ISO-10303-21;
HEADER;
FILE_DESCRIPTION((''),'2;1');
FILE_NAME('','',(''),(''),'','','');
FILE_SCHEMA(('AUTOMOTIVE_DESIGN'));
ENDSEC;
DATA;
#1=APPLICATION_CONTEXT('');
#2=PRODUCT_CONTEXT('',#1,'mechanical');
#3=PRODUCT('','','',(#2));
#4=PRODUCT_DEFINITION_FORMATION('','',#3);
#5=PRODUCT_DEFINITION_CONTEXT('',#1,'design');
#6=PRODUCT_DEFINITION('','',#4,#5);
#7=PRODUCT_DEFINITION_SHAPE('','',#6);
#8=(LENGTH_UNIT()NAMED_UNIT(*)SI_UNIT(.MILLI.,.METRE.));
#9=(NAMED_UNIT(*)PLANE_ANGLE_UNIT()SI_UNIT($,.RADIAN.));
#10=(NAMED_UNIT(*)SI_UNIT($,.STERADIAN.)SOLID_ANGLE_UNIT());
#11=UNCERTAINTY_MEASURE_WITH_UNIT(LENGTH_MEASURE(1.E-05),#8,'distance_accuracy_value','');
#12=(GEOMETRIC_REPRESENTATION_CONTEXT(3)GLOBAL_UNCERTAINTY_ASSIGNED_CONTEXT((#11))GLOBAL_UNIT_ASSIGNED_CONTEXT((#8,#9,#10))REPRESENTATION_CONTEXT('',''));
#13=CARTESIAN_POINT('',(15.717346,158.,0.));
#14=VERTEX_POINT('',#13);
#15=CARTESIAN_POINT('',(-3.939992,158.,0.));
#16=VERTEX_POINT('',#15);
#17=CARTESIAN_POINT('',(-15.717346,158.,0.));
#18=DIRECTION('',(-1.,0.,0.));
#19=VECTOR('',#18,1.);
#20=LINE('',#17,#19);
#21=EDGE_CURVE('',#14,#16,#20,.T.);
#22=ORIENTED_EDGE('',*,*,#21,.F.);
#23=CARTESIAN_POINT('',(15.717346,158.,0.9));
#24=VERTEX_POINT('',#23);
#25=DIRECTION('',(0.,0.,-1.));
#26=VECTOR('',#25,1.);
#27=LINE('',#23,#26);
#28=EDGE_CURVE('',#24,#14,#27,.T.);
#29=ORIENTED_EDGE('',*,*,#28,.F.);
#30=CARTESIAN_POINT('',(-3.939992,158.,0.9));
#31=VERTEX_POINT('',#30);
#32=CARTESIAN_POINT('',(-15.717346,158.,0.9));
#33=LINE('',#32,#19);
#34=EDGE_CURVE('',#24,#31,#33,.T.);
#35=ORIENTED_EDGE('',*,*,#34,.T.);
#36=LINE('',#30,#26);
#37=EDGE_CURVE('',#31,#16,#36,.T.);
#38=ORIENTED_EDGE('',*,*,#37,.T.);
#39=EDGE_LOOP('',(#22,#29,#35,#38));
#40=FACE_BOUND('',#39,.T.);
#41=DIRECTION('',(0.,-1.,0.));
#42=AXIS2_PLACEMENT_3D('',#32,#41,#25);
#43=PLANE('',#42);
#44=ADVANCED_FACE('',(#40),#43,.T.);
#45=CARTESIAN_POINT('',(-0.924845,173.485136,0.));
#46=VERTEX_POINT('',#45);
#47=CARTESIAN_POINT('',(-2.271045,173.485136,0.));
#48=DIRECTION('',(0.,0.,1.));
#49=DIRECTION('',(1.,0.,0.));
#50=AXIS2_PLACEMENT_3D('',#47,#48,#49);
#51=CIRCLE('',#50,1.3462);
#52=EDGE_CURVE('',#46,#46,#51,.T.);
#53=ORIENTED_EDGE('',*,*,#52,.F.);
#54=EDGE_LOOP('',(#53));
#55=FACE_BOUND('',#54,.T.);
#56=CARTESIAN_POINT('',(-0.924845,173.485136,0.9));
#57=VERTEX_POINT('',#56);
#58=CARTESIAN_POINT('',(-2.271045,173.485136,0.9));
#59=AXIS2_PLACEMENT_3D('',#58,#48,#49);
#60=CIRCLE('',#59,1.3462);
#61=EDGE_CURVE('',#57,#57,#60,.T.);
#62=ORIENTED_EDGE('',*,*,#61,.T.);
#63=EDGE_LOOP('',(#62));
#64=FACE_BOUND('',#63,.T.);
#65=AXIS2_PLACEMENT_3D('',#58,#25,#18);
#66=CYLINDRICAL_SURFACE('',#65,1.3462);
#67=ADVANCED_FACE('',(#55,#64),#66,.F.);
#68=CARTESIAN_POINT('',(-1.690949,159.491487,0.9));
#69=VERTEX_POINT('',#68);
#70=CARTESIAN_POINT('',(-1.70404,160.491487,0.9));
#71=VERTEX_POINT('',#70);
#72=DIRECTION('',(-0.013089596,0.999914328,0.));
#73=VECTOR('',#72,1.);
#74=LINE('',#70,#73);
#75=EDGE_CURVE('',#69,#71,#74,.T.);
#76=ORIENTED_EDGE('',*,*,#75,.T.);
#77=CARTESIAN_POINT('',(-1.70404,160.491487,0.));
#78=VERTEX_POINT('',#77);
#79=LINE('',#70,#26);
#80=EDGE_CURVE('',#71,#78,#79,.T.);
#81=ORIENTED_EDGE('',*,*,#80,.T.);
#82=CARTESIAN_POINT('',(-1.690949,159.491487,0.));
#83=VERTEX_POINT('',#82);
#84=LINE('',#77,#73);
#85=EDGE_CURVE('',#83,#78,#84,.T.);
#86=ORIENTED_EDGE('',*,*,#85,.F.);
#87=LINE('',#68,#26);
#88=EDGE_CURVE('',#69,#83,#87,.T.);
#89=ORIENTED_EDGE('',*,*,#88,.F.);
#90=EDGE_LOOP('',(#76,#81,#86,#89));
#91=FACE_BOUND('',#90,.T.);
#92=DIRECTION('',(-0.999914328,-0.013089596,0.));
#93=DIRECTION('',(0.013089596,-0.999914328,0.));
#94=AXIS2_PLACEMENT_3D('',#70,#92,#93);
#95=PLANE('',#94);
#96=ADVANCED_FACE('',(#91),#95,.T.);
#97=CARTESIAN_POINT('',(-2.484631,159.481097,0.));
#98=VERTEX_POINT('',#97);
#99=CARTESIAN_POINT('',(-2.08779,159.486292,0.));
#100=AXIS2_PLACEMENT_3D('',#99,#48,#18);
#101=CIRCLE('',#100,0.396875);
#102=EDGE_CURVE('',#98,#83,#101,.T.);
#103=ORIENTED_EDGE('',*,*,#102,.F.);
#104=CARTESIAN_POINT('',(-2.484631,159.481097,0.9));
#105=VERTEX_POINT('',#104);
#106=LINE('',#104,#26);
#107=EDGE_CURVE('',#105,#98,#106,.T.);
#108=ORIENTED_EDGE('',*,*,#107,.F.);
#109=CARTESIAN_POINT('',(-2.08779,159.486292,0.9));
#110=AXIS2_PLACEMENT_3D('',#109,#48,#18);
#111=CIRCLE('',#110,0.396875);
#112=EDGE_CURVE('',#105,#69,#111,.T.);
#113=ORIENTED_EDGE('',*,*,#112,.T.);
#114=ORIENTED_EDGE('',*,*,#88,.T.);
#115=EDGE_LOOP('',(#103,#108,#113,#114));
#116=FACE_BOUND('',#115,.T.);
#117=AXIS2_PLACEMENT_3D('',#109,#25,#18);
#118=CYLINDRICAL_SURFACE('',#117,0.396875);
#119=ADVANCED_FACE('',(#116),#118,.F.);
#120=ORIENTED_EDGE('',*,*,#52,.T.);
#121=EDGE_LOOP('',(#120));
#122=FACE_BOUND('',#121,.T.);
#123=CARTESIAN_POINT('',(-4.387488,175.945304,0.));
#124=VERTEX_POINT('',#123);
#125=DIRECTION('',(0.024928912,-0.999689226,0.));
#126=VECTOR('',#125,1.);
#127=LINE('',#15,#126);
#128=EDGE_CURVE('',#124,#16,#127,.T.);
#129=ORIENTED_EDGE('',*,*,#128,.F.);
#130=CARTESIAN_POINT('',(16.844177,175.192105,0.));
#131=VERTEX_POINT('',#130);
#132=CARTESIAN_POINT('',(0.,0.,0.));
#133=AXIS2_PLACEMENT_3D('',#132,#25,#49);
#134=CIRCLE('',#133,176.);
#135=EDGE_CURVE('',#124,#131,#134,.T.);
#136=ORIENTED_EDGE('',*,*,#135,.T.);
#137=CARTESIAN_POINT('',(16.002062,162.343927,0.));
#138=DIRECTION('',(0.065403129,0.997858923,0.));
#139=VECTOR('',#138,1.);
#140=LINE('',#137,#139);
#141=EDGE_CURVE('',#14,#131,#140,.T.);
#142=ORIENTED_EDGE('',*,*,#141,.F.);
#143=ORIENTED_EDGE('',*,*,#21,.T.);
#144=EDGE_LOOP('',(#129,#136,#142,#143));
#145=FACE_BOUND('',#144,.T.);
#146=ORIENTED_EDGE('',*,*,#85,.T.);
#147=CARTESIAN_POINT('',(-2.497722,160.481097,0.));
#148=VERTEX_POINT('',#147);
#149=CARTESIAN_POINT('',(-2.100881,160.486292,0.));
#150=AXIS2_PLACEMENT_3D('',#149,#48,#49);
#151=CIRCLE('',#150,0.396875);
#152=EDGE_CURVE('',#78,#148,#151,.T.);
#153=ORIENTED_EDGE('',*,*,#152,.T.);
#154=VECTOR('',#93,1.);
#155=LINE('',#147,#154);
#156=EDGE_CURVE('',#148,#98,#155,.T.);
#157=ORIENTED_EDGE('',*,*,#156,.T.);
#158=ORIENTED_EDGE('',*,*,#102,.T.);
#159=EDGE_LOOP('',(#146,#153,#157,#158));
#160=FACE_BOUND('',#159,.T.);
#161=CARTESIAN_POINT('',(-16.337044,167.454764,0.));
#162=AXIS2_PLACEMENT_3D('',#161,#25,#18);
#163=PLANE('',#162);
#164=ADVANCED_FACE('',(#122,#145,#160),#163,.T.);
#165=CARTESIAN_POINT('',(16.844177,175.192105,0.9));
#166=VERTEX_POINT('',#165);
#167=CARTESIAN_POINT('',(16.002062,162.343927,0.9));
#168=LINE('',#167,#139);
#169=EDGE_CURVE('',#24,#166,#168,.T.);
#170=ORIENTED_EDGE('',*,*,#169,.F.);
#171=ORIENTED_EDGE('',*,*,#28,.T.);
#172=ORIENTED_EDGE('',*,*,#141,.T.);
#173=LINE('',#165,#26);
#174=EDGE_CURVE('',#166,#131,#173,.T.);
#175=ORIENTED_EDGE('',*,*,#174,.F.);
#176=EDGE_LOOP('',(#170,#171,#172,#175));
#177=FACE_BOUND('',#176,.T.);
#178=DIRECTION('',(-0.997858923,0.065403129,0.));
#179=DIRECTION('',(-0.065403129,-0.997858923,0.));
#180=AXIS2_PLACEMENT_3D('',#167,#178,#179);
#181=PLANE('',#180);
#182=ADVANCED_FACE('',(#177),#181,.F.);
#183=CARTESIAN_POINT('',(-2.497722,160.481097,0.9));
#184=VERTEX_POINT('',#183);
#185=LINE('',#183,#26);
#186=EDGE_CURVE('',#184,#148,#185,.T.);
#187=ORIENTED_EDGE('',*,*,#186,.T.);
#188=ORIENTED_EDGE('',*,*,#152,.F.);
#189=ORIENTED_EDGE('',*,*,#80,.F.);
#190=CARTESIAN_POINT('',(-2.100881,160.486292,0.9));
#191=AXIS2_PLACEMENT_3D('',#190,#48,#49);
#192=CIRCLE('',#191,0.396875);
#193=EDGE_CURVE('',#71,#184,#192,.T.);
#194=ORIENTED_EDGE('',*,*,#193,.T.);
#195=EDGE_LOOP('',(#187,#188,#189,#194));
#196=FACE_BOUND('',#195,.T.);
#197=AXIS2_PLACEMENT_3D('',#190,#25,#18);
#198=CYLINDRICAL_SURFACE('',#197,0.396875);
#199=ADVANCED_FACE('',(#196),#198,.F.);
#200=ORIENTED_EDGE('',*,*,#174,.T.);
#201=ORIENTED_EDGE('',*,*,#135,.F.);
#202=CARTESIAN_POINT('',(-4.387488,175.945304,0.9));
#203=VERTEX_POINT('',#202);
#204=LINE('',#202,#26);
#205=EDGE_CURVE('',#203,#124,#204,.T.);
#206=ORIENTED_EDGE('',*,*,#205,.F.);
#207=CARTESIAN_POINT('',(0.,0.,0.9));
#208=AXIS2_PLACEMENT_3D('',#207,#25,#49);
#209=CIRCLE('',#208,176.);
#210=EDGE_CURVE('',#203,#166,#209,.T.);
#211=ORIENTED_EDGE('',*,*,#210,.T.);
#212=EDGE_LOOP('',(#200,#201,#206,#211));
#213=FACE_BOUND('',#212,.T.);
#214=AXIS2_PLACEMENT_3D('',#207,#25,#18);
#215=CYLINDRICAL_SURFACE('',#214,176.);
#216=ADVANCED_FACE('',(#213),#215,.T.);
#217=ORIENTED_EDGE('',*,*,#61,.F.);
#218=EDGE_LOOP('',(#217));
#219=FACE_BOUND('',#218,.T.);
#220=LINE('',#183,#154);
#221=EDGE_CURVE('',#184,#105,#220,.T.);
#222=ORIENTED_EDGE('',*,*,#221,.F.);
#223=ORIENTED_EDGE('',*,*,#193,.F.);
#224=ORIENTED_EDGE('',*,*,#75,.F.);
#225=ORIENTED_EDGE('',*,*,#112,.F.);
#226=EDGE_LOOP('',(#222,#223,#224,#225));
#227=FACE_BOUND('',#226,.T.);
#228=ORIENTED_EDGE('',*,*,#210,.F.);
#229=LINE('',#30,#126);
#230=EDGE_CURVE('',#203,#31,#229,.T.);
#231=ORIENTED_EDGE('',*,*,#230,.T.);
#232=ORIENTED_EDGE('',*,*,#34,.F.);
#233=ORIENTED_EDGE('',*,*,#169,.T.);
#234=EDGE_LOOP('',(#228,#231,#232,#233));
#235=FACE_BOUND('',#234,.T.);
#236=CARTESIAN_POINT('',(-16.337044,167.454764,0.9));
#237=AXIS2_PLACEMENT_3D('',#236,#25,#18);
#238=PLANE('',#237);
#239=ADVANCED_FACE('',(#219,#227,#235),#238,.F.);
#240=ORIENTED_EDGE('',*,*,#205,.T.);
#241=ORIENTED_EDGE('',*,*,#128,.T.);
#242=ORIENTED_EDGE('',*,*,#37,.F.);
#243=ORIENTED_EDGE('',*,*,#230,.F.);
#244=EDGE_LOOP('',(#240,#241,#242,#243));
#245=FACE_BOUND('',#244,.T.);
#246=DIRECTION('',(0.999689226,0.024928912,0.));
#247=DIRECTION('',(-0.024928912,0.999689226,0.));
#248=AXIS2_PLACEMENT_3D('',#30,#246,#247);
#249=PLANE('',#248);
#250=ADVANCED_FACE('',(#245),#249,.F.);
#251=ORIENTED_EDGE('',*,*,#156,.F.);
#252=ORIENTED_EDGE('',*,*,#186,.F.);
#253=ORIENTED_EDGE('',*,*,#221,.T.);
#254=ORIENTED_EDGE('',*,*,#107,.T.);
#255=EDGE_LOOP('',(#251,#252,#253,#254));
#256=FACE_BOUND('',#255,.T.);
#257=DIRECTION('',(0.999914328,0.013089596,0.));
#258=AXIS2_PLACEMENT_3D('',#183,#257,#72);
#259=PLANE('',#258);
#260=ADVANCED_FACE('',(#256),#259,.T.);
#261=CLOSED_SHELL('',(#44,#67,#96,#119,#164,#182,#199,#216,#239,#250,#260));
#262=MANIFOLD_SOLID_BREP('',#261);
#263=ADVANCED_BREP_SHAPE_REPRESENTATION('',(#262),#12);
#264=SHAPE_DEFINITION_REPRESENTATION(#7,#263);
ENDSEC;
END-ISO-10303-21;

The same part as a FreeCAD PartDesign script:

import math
import FreeCAD as App
import Part
import Sketcher

V = App.Vector
Q = App.Units.Quantity


def edges_at(feature, points):
    """Names of the edges that pass closest to the given points."""
    edges = feature.Shape.Edges
    near = lambda p: min(range(len(edges)), key=lambda i: edges[i].distToShape(Part.Vertex(*p))[0])
    return sorted({f"Edge{near(p) + 1}" for p in points})

doc = App.newDocument("Part")
params = doc.addObject("Spreadsheet::Sheet", "Params")
for row, (alias, value) in enumerate([
    ("pad1_length", "0.9 mm"),
    ("sketch2_radius", "176 mm"),
    ("pad2_length", "0.9 mm"),
    ("sketch4_radius", "1 mm"),
    ("sketch5_radius", "176.000002 mm"),
    ("fillet_radius", "0.5 mm"),
    ("sketch6_radius", "1 mm"),
    ("sketch6_radius2", "0.5 mm"),
], start=1):
    params.set(f"A{row}", alias)
    params.set(f"B{row}", "=" + value)
    params.setAlias(f"B{row}", alias)

body = doc.addObject("PartDesign::Body", "Body")

# Sketch on XY plane
sketch1 = body.newObject("Sketcher::SketchObject", "Sketch")
sketch1.AttachmentSupport = (doc.getObject("XY_Plane"), [""])
sketch1.MapMode = "FlatFace"
sketch1.addGeometry(Part.LineSegment(V(16.337044, 167.454764, 0), V(-16.337044, 167.454764, 0)), False)
sketch1.addGeometry(Part.LineSegment(V(-16.337044, 167.454764, 0), V(-16.002062, 162.343927, 0)), False)
sketch1.addGeometry(Part.LineSegment(V(-16.002062, 162.343927, 0), V(16.002062, 162.343927, 0)), False)
sketch1.addGeometry(Part.LineSegment(V(16.002062, 162.343927, 0), V(16.337044, 167.454764, 0)), False)
sketch1.addConstraint(Sketcher.Constraint("Coincident", 0, 2, 1, 1))
sketch1.addConstraint(Sketcher.Constraint("Coincident", 1, 2, 2, 1))
sketch1.addConstraint(Sketcher.Constraint("Coincident", 2, 2, 3, 1))
sketch1.addConstraint(Sketcher.Constraint("Coincident", 3, 2, 0, 1))
sketch1.addConstraint(Sketcher.Constraint("Horizontal", 0))
sketch1.addConstraint(Sketcher.Constraint("Horizontal", 2))
sketch1.addConstraint(Sketcher.Constraint("Equal", 1, 3))
sketch1.addConstraint(Sketcher.Constraint("Angle", 1, Q("-86.25 deg")))
sketch1.addConstraint(Sketcher.Constraint("DistanceX", 0, 2, 0, 1, 32.674089))
sketch1.addConstraint(Sketcher.Constraint("DistanceX", 2, 1, 2, 2, 32.004125))
sketch1.addConstraint(Sketcher.Constraint("DistanceX", 0, 2, -1, 1, 16.337044))
sketch1.addConstraint(Sketcher.Constraint("DistanceY", -1, 1, 0, 2, 167.454764))
pad1 = body.newObject("PartDesign::Pad", "Pad")
pad1.Profile = sketch1
pad1.setExpression("Length", "Params.pad1_length")

# Sketch on XY plane
sketch2 = body.newObject("Sketcher::SketchObject", "Sketch001")
sketch2.AttachmentSupport = (doc.getObject("XY_Plane"), [""])
sketch2.MapMode = "FlatFace"
sketch2.addGeometry(Part.LineSegment(V(-15.717346, 158, 0), V(-16.844177, 175.192105, 0)), False)
sketch2.addGeometry(Part.ArcOfCircle(Part.Circle(V(0, 0, 0), V(0, 0, 1), 176), math.radians(84.50807), math.radians(95.49193)), False)
sketch2.addGeometry(Part.LineSegment(V(16.844177, 175.192105, 0), V(15.717346, 158, 0)), False)
sketch2.addGeometry(Part.LineSegment(V(15.717346, 158, 0), V(-15.717346, 158, 0)), False)
sketch2.addConstraint(Sketcher.Constraint("Coincident", 0, 2, 1, 2))
sketch2.addConstraint(Sketcher.Constraint("Coincident", 1, 1, 2, 1))
sketch2.addConstraint(Sketcher.Constraint("Coincident", 2, 2, 3, 1))
sketch2.addConstraint(Sketcher.Constraint("Coincident", 3, 2, 0, 1))
sketch2.addConstraint(Sketcher.Constraint("Horizontal", 3))
sketch2.addConstraint(Sketcher.Constraint("Coincident", 1, 3, -1, 1))
sketch2.addConstraint(Sketcher.Constraint("Horizontal", 0, 2, 1, 1))
sketch2.addConstraint(Sketcher.Constraint("Equal", 0, 2))
sketch2.addConstraint(Sketcher.Constraint("Radius", 1, 176.0))
sketch2.addConstraint(Sketcher.Constraint("DistanceY", -1, 1, 2, 2, 158.0))
sketch2.addConstraint(Sketcher.Constraint("Angle", 0, Q("93.75 deg")))
sketch2.addConstraint(Sketcher.Constraint("DistanceX", 3, 2, 3, 1, 31.434693))
sketch2.setExpression("Constraints[8]", "Params.sketch2_radius")
pad2 = body.newObject("PartDesign::Pad", "Pad001")
pad2.Profile = sketch2
pad2.setExpression("Length", "Params.pad2_length")

# Sketch on XY plane
sketch3 = body.newObject("Sketcher::SketchObject", "Sketch002")
sketch3.AttachmentSupport = (doc.getObject("XY_Plane"), [""])
sketch3.MapMode = "FlatFace"
sketch3.addGeometry(Part.Circle(V(-2.271045, 173.485136, 0), V(0, 0, 1), 1.3462), False)
sketch3.addGeometry(Part.LineSegment(V(-1.690949, 159.491487, 0), V(-1.70404, 160.491487, 0)), False)
sketch3.addGeometry(Part.ArcOfCircle(Part.Circle(V(-2.100881, 160.486292, 0), V(0, 0, 1), 0.396875), math.radians(0.75), math.radians(180.75)), False)
sketch3.addGeometry(Part.LineSegment(V(-2.497722, 160.481097, 0), V(-2.484631, 159.481097, 0)), False)
sketch3.addGeometry(Part.ArcOfCircle(Part.Circle(V(-2.08779, 159.486292, 0), V(0, 0, 1), 0.396875), math.radians(-179.25), math.radians(0.75)), False)
sketch3.addConstraint(Sketcher.Constraint("Tangent", 1, 2, 2, 1))
sketch3.addConstraint(Sketcher.Constraint("Tangent", 2, 2, 3, 1))
sketch3.addConstraint(Sketcher.Constraint("Tangent", 3, 2, 4, 1))
sketch3.addConstraint(Sketcher.Constraint("Tangent", 4, 2, 1, 1))
sketch3.addConstraint(Sketcher.Constraint("Equal", 2, 4))
sketch3.addConstraint(Sketcher.Constraint("DistanceY", 4, 3, 2, 3, 1.0))
sketch3.addConstraint(Sketcher.Constraint("Diameter", 0, 2.6924))
sketch3.addConstraint(Sketcher.Constraint("Angle", 1, Q("90.75 deg")))
sketch3.addConstraint(Sketcher.Constraint("Radius", 2, 0.396875))
sketch3.addConstraint(Sketcher.Constraint("DistanceX", 2, 3, -1, 1, 2.100881))
sketch3.addConstraint(Sketcher.Constraint("DistanceY", 1, 2, 0, 3, 12.993648))
sketch3.addConstraint(Sketcher.Constraint("DistanceX", 0, 3, -1, 1, 2.271045))
sketch3.addConstraint(Sketcher.Constraint("DistanceY", -1, 1, 0, 3, 173.485136))
pocket1 = body.newObject("PartDesign::Pocket", "Pocket")
pocket1.Profile = sketch3
pocket1.Type = "ThroughAll"
pocket1.Reversed = True

# Sketch on XY plane
sketch4 = body.newObject("Sketcher::SketchObject", "Sketch003")
sketch4.AttachmentSupport = (doc.getObject("XY_Plane"), [""])
sketch4.MapMode = "FlatFace"
sketch4.AttachmentOffset = App.Placement(V(0, 0, 0.9), App.Rotation())
sketch4.addGeometry(Part.LineSegment(V(-12, 171, 0), V(-12, 175.590433, 0)), False)
sketch4.addGeometry(Part.ArcOfCircle(Part.Circle(V(0, 0.000005, 0), V(0, 0, 1), 175.999995), math.radians(93.909564), math.radians(95.49193)), False)
sketch4.addGeometry(Part.LineSegment(V(-16.844177, 175.192105, 0), V(-16.503868, 170, 0)), False)
sketch4.addGeometry(Part.LineSegment(V(-16.503868, 170, 0), V(-13, 170, 0)), False)
sketch4.addGeometry(Part.ArcOfCircle(Part.Circle(V(-13, 171, 0), V(0, 0, 1), 1), math.radians(-90), math.radians(0)), False)
sketch4.addConstraint(Sketcher.Constraint("Coincident", 0, 2, 1, 1))
sketch4.addConstraint(Sketcher.Constraint("Coincident", 1, 2, 2, 1))
sketch4.addConstraint(Sketcher.Constraint("Coincident", 2, 2, 3, 1))
sketch4.addConstraint(Sketcher.Constraint("Tangent", 3, 2, 4, 1))
sketch4.addConstraint(Sketcher.Constraint("Tangent", 4, 2, 0, 1))
sketch4.addConstraint(Sketcher.Constraint("Vertical", 0))
sketch4.addConstraint(Sketcher.Constraint("Horizontal", 3))
sketch4.addConstraint(Sketcher.Constraint("Coincident", 1, 3, -1, 1))
sketch4.addConstraint(Sketcher.Constraint("Radius", 4, 1.0))
sketch4.addConstraint(Sketcher.Constraint("DistanceX", 4, 3, -1, 1, 13.0))
sketch4.addConstraint(Sketcher.Constraint("DistanceY", -1, 1, 4, 3, 171.0))
sketch4.addConstraint(Sketcher.Constraint("Angle", 2, Q("-86.25 deg")))
sketch4.addConstraint(Sketcher.Constraint("Radius", 1, 175.999995))
sketch4.addConstraint(Sketcher.Constraint("DistanceX", 3, 1, 3, 2, 3.503868))
sketch4.setExpression("Constraints[8]", "Params.sketch4_radius")
pocket2 = body.newObject("PartDesign::Pocket", "Pocket001")
pocket2.Profile = sketch4
pocket2.Type = "ThroughAll"

# Sketch on XY plane
sketch5 = body.newObject("Sketcher::SketchObject", "Sketch004")
sketch5.AttachmentSupport = (doc.getObject("XY_Plane"), [""])
sketch5.MapMode = "FlatFace"
sketch5.AttachmentOffset = App.Placement(V(0, 0, 0.9), App.Rotation())
sketch5.addGeometry(Part.LineSegment(V(-5.934879, 173.754534, 0), V(-5.934879, 175.899907, 0)), False)
sketch5.addGeometry(Part.ArcOfCircle(Part.Circle(V(0, -0.000002, 0), V(0, 0, 1), 176.000002), math.radians(91.932432), math.radians(94.374945)), False)
sketch5.addGeometry(Part.LineSegment(V(-13.425811, 175.487172, 0), V(-13.425811, 173.754534, 0)), False)
sketch5.addGeometry(Part.LineSegment(V(-13.425811, 173.754534, 0), V(-5.934879, 173.754534, 0)), False)
sketch5.addConstraint(Sketcher.Constraint("Coincident", 0, 2, 1, 1))
sketch5.addConstraint(Sketcher.Constraint("Coincident", 1, 2, 2, 1))
sketch5.addConstraint(Sketcher.Constraint("Coincident", 2, 2, 3, 1))
sketch5.addConstraint(Sketcher.Constraint("Coincident", 3, 2, 0, 1))
sketch5.addConstraint(Sketcher.Constraint("Vertical", 0))
sketch5.addConstraint(Sketcher.Constraint("Vertical", 2))
sketch5.addConstraint(Sketcher.Constraint("Horizontal", 3))
sketch5.addConstraint(Sketcher.Constraint("Coincident", 1, 3, -1, 1))
sketch5.addConstraint(Sketcher.Constraint("Radius", 1, 176.000002))
sketch5.addConstraint(Sketcher.Constraint("DistanceY", 2, 2, 2, 1, 1.732638))
sketch5.addConstraint(Sketcher.Constraint("DistanceX", 3, 1, 3, 2, 7.490932))
sketch5.addConstraint(Sketcher.Constraint("DistanceY", 0, 1, 0, 2, 2.145373))
sketch5.setExpression("Constraints[8]", "Params.sketch5_radius")
pocket3 = body.newObject("PartDesign::Pocket", "Pocket002")
pocket3.Profile = sketch5
pocket3.Type = "ThroughAll"
doc.recompute()

fillet = body.newObject("PartDesign::Fillet", "Fillet")
fillet.Base = (pocket3, edges_at(pocket3, [(-5.935, 173.755, 0.45)]))
fillet.setExpression("Radius", "Params.fillet_radius")

# Sketch on XY plane
sketch6 = body.newObject("Sketcher::SketchObject", "Sketch005")
sketch6.AttachmentSupport = (doc.getObject("XY_Plane"), [""])
sketch6.MapMode = "FlatFace"
sketch6.addGeometry(Part.LineSegment(V(-4.387488, 175.945304, 0), V(-3.939992, 158, 0)), False)
sketch6.addGeometry(Part.LineSegment(V(-3.939992, 158, 0), V(-15.717346, 158, 0)), False)
sketch6.addGeometry(Part.LineSegment(V(-15.717346, 158, 0), V(-16.503868, 170, 0)), False)
sketch6.addGeometry(Part.LineSegment(V(-16.503868, 170, 0), V(-13, 170, 0)), False)
sketch6.addGeometry(Part.ArcOfCircle(Part.Circle(V(-13, 171, 0), V(0, 0, 1), 1), math.radians(-90), math.radians(0)), False)
sketch6.addGeometry(Part.LineSegment(V(-12, 171, 0), V(-12, 173.754534, 0)), False)
sketch6.addGeometry(Part.LineSegment(V(-12, 173.754534, 0), V(-6.434879, 173.754534, 0)), False)
sketch6.addGeometry(Part.ArcOfCircle(Part.Circle(V(-6.434879, 174.254534, 0), V(0, 0, 1), 0.5), math.radians(-90), math.radians(0)), False)
sketch6.addGeometry(Part.LineSegment(V(-5.934879, 174.254534, 0), V(-5.934879, 175.899907, 0)), False)
sketch6.addGeometry(Part.ArcOfCircle(Part.Circle(V(0, -0.000008, 0), V(0, 0, 1), 176.000008), math.radians(91.428469), math.radians(91.932432)), False)
sketch6.addConstraint(Sketcher.Constraint("Coincident", 0, 2, 1, 1))
sketch6.addConstraint(Sketcher.Constraint("Coincident", 1, 2, 2, 1))
sketch6.addConstraint(Sketcher.Constraint("Coincident", 2, 2, 3, 1))
sketch6.addConstraint(Sketcher.Constraint("Tangent", 3, 2, 4, 1))
sketch6.addConstraint(Sketcher.Constraint("Tangent", 4, 2, 5, 1))
sketch6.addConstraint(Sketcher.Constraint("Coincident", 5, 2, 6, 1))
sketch6.addConstraint(Sketcher.Constraint("Tangent", 6, 2, 7, 1))
sketch6.addConstraint(Sketcher.Constraint("Tangent", 7, 2, 8, 1))
sketch6.addConstraint(Sketcher.Constraint("Coincident", 8, 2, 9, 2))
sketch6.addConstraint(Sketcher.Constraint("Coincident", 9, 1, 0, 1))
sketch6.addConstraint(Sketcher.Constraint("Horizontal", 1))
sketch6.addConstraint(Sketcher.Constraint("Horizontal", 3))
sketch6.addConstraint(Sketcher.Constraint("Vertical", 5))
sketch6.addConstraint(Sketcher.Constraint("Horizontal", 6))
sketch6.addConstraint(Sketcher.Constraint("Vertical", 8))
sketch6.addConstraint(Sketcher.Constraint("Coincident", 9, 3, -1, 1))
sketch6.addConstraint(Sketcher.Constraint("Radius", 4, 1.0))
sketch6.addConstraint(Sketcher.Constraint("Radius", 7, 0.5))
sketch6.addConstraint(Sketcher.Constraint("DistanceX", 4, 3, -1, 1, 13.0))
sketch6.addConstraint(Sketcher.Constraint("DistanceY", -1, 1, 4, 3, 171.0))
sketch6.addConstraint(Sketcher.Constraint("DistanceY", -1, 1, 0, 2, 158.0))
sketch6.addConstraint(Sketcher.Constraint("Angle", 2, Q("93.75 deg")))
sketch6.addConstraint(Sketcher.Constraint("Radius", 9, 176.000008))
sketch6.addConstraint(Sketcher.Constraint("DistanceX", 3, 1, 3, 2, 3.503868))
sketch6.addConstraint(Sketcher.Constraint("DistanceX", 6, 1, 6, 2, 5.565121))
sketch6.addConstraint(Sketcher.Constraint("DistanceX", 1, 2, 1, 1, 11.777354))
sketch6.addConstraint(Sketcher.Constraint("DistanceY", 5, 1, 5, 2, 2.754534))
sketch6.addConstraint(Sketcher.Constraint("DistanceX", 9, 1, -1, 1, 4.387488))
sketch6.setExpression("Constraints[16]", "Params.sketch6_radius")
sketch6.setExpression("Constraints[17]", "Params.sketch6_radius2")
pocket4 = body.newObject("PartDesign::Pocket", "Pocket003")
pocket4.Profile = sketch6
pocket4.Type = "ThroughAll"
pocket4.Reversed = True

doc.recompute()
